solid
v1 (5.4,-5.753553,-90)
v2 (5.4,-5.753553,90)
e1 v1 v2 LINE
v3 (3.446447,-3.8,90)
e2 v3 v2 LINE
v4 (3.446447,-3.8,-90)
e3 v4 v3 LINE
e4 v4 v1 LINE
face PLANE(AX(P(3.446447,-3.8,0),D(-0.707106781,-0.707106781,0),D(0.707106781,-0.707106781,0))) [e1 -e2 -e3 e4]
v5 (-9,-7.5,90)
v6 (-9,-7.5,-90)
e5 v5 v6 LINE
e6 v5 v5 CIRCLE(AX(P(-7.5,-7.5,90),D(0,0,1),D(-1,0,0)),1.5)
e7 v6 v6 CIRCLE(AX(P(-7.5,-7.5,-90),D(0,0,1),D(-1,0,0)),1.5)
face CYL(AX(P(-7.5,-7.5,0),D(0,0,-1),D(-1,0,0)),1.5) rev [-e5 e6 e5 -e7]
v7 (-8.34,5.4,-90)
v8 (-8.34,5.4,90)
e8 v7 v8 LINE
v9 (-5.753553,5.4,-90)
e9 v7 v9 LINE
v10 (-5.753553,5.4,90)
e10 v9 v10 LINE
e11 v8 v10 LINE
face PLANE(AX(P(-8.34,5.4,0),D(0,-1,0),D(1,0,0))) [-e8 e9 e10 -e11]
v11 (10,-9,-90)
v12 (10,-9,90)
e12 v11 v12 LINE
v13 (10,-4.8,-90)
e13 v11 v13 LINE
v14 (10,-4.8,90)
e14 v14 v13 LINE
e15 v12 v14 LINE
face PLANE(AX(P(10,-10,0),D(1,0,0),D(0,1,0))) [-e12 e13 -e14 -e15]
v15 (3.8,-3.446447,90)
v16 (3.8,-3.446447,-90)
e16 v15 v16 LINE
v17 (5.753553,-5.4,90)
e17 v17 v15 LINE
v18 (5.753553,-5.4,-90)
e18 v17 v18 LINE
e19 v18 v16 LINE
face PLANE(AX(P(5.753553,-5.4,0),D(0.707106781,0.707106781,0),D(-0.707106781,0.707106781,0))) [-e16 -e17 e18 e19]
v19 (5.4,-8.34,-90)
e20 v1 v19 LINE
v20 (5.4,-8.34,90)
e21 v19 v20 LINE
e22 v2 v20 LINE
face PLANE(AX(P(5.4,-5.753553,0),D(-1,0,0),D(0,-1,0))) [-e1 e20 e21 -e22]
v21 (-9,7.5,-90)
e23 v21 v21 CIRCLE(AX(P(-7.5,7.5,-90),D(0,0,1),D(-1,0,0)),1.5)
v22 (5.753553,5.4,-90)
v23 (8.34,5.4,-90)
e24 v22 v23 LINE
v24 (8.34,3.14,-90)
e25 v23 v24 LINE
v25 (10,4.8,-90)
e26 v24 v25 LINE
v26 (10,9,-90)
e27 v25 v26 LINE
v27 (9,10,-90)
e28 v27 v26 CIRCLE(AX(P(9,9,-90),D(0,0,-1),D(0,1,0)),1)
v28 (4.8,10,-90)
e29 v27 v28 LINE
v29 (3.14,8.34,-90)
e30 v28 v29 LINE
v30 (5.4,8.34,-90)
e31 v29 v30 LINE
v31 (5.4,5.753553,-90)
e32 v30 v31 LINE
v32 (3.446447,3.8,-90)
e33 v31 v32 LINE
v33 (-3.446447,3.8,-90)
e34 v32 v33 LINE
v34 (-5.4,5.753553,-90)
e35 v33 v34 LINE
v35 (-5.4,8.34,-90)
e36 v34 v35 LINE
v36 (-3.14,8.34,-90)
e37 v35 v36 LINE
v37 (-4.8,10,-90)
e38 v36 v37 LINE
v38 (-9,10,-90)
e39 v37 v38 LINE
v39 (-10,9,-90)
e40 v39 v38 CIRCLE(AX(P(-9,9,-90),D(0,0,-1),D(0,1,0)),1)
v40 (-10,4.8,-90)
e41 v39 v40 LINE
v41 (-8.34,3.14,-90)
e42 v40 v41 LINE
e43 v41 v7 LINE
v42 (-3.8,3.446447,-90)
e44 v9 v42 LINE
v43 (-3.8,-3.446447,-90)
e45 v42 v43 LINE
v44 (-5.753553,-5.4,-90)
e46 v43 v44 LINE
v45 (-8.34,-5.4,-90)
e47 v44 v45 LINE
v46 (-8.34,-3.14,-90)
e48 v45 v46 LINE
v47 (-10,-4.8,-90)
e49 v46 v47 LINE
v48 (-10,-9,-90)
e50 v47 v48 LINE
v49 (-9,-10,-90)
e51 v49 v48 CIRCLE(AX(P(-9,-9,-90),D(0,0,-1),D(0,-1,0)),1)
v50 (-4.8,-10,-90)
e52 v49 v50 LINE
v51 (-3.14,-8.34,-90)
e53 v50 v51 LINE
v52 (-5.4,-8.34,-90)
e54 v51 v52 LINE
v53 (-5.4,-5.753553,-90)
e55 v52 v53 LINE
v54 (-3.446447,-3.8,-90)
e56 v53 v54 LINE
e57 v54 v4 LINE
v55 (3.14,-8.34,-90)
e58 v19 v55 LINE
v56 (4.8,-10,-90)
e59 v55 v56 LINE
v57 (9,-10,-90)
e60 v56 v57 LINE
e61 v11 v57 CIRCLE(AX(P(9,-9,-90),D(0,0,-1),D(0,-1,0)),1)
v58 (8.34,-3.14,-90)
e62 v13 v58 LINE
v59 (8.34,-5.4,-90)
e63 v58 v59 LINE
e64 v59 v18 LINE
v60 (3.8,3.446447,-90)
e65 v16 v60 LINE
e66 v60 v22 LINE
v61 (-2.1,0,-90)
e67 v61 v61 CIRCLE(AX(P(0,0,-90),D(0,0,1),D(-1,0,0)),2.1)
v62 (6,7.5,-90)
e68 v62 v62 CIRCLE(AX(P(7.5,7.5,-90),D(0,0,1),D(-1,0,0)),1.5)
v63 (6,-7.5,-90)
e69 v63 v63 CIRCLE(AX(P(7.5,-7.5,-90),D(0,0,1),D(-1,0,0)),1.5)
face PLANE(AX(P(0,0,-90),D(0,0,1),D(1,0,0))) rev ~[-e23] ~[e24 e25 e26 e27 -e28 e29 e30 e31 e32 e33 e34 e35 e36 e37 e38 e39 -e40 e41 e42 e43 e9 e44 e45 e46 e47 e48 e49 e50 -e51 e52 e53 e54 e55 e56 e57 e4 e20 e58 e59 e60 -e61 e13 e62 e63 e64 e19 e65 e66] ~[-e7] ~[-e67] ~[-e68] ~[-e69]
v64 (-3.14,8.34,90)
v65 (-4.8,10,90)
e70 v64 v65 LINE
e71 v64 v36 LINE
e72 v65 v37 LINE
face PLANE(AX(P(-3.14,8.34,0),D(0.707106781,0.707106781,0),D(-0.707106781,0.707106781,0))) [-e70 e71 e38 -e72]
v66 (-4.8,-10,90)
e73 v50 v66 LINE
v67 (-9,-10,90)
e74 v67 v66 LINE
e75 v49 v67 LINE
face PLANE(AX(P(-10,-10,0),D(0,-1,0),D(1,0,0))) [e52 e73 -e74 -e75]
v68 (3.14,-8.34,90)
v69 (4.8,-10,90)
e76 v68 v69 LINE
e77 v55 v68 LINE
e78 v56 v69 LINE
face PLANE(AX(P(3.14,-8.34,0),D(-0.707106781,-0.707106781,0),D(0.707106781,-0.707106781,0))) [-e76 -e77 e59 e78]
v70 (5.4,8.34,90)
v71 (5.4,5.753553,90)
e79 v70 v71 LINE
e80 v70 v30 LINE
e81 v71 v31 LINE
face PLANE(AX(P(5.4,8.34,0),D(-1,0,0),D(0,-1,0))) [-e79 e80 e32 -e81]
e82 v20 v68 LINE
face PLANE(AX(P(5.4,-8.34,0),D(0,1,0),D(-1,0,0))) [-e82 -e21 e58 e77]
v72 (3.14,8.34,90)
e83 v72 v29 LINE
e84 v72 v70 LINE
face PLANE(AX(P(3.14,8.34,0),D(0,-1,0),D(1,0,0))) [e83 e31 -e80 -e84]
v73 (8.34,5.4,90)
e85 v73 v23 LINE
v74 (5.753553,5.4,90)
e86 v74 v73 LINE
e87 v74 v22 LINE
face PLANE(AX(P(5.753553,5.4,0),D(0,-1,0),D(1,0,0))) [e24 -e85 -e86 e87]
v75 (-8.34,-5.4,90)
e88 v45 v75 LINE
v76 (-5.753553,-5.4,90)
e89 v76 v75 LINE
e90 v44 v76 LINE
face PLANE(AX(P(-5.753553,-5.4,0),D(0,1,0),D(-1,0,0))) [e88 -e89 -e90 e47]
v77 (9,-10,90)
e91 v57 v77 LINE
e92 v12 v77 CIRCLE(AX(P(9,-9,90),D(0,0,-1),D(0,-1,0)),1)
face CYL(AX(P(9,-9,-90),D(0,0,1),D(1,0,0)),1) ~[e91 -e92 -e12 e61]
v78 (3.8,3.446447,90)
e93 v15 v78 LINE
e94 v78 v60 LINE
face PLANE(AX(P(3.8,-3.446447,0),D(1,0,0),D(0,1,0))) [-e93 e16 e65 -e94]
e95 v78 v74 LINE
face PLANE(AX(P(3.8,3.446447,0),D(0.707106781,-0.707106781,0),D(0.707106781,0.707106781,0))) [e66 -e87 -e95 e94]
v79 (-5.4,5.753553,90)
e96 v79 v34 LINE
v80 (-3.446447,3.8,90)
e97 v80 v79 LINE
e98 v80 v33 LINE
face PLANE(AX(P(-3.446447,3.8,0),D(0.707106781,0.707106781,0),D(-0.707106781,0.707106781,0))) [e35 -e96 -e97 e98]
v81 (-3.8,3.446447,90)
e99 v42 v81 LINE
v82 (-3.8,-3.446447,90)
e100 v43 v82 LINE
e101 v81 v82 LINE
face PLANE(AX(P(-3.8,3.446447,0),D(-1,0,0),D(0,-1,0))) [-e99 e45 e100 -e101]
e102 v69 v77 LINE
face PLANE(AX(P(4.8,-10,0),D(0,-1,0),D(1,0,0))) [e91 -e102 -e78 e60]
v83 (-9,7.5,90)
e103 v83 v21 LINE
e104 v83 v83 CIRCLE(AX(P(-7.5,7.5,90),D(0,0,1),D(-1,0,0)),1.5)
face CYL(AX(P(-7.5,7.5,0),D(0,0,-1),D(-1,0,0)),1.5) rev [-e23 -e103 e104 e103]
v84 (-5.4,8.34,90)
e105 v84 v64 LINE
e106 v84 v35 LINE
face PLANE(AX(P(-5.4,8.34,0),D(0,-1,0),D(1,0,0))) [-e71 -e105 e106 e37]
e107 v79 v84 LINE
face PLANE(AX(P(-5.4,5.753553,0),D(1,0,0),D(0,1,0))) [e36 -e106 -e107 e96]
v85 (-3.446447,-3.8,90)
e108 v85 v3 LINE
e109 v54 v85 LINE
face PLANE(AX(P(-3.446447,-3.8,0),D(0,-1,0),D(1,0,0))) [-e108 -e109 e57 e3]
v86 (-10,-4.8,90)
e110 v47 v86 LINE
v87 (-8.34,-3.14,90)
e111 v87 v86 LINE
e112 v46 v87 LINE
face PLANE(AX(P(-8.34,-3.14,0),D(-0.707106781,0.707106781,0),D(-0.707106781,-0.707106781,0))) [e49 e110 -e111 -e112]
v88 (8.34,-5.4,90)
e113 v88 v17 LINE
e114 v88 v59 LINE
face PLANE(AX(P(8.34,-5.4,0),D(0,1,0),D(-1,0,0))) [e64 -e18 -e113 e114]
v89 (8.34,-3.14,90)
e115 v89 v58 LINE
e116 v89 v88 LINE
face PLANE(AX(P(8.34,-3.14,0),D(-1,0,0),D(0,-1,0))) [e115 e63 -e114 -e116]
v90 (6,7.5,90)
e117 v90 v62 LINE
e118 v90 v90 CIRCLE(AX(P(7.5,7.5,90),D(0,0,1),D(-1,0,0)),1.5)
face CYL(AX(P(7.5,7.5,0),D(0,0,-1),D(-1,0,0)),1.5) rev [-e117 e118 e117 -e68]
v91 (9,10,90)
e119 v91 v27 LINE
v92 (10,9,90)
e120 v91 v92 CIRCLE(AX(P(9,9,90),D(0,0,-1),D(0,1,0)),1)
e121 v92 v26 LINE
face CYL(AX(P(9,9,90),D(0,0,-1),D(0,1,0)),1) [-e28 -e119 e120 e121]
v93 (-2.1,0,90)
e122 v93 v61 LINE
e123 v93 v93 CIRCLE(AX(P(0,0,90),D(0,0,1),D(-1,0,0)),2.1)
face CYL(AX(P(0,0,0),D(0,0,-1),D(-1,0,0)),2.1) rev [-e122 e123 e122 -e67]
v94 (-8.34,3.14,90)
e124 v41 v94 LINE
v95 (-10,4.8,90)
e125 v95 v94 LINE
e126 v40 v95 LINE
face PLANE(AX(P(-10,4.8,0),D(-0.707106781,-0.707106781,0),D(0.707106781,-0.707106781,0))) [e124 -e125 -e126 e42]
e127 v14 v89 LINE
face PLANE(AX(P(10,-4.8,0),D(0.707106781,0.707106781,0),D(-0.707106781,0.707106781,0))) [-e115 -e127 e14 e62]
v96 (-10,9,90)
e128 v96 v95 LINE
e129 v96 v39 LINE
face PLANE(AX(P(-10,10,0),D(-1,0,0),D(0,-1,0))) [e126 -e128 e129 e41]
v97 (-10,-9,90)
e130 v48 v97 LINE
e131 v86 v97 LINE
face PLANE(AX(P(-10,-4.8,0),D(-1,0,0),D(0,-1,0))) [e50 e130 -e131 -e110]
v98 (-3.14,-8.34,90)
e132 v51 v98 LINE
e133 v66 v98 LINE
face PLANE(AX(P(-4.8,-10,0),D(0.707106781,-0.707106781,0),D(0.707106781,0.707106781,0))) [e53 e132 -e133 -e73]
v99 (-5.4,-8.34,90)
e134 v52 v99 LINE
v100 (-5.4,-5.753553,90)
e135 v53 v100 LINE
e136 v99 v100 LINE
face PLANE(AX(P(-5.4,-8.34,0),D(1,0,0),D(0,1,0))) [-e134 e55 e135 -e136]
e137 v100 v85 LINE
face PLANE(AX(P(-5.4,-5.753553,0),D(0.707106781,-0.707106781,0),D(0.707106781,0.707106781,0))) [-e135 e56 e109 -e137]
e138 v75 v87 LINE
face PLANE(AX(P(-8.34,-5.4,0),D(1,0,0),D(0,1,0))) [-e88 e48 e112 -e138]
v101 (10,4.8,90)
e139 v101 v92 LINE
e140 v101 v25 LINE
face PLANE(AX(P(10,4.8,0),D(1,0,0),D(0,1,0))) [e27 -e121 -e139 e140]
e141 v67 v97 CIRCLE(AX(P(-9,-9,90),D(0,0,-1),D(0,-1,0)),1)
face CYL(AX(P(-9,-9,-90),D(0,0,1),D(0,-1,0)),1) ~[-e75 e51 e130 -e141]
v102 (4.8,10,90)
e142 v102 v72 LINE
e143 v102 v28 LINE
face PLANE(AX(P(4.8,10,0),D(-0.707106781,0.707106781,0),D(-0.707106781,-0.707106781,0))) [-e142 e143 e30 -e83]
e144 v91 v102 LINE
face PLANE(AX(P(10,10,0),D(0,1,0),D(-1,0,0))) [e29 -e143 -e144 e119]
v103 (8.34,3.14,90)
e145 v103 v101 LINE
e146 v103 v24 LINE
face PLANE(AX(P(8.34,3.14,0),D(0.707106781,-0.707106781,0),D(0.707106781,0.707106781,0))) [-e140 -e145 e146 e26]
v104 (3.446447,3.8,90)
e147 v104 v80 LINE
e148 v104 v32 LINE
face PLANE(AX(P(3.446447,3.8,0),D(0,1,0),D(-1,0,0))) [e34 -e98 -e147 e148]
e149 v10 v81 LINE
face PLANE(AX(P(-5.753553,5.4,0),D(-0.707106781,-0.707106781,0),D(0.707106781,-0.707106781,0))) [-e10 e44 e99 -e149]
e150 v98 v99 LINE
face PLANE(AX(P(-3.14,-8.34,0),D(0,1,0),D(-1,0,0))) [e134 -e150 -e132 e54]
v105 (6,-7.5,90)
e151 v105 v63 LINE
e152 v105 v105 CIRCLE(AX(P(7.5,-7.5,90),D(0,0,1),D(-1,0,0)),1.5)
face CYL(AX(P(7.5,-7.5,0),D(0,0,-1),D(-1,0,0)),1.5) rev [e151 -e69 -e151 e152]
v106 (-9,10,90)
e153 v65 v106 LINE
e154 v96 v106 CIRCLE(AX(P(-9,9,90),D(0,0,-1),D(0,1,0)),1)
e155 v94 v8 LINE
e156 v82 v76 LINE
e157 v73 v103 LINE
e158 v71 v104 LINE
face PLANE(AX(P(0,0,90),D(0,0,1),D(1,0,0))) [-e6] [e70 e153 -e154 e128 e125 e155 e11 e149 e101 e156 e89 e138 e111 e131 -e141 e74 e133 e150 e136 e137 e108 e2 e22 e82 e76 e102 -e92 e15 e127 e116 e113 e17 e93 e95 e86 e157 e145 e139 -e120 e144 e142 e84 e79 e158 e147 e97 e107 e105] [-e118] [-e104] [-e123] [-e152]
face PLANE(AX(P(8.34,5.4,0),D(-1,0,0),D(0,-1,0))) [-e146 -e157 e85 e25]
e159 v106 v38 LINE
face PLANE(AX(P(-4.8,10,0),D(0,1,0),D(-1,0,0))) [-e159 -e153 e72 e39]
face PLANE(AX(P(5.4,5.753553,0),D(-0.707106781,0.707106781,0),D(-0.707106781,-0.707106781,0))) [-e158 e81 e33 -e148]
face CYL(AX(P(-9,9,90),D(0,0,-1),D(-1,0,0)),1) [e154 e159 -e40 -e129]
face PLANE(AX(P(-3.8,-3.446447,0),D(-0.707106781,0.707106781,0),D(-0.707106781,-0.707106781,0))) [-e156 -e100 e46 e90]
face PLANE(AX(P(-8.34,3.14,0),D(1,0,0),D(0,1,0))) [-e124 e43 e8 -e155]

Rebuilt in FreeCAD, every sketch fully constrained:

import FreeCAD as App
import Part
import Sketcher
from FreeCAD import Vector


def edges_at(feature, points):
    """Names of the edges that pass closest to the given points."""
    edges = feature.Shape.Edges
    near = lambda p: min(range(len(edges)), key=lambda i: edges[i].distToShape(Part.Vertex(*p))[0])
    return sorted({f"Edge{near(p) + 1}" for p in points})

doc = App.newDocument("Part")
body = doc.addObject("PartDesign::Body", "Body")

# Sketch on XY plane
sketch1 = body.newObject("Sketcher::SketchObject", "Sketch")
sketch1.AttachmentSupport = (doc.getObject("XY_Plane"), [""])
sketch1.MapMode = "FlatFace"
sketch1.addGeometry([
    Part.LineSegment(Vector(-10, 10, 0), Vector(-10, 4.8, 0)),  # 0
    Part.LineSegment(Vector(-10, 4.8, 0), Vector(-8.3, 3.1, 0)),  # 1
    Part.LineSegment(Vector(-8.3, 3.1, 0), Vector(-8.3, 5.4, 0)),  # 2
    Part.LineSegment(Vector(-8.3, 5.4, 0), Vector(-5.8, 5.4, 0)),  # 3
    Part.LineSegment(Vector(-5.8, 5.4, 0), Vector(-3.8, 3.4, 0)),  # 4
    Part.LineSegment(Vector(-3.8, 3.4, 0), Vector(-3.8, -3.4, 0)),  # 5
    Part.LineSegment(Vector(-3.8, -3.4, 0), Vector(-5.8, -5.4, 0)),  # 6
    Part.LineSegment(Vector(-5.8, -5.4, 0), Vector(-8.3, -5.4, 0)),  # 7
    Part.LineSegment(Vector(-8.3, -5.4, 0), Vector(-8.3, -3.1, 0)),  # 8
    Part.LineSegment(Vector(-8.3, -3.1, 0), Vector(-10, -4.8, 0)),  # 9
    Part.LineSegment(Vector(-10, -4.8, 0), Vector(-10, -10, 0)),  # 10
    Part.LineSegment(Vector(-10, -10, 0), Vector(-4.8, -10, 0)),  # 11
    Part.LineSegment(Vector(-4.8, -10, 0), Vector(-3.1, -8.3, 0)),  # 12
    Part.LineSegment(Vector(-3.1, -8.3, 0), Vector(-5.4, -8.3, 0)),  # 13
    Part.LineSegment(Vector(-5.4, -8.3, 0), Vector(-5.4, -5.8, 0)),  # 14
    Part.LineSegment(Vector(-5.4, -5.8, 0), Vector(-3.4, -3.8, 0)),  # 15
    Part.LineSegment(Vector(-3.4, -3.8, 0), Vector(3.4, -3.8, 0)),  # 16
    Part.LineSegment(Vector(3.4, -3.8, 0), Vector(5.4, -5.8, 0)),  # 17
    Part.LineSegment(Vector(5.4, -5.8, 0), Vector(5.4, -8.3, 0)),  # 18
    Part.LineSegment(Vector(5.4, -8.3, 0), Vector(3.1, -8.3, 0)),  # 19
    Part.LineSegment(Vector(3.1, -8.3, 0), Vector(4.8, -10, 0)),  # 20
    Part.LineSegment(Vector(4.8, -10, 0), Vector(10, -10, 0)),  # 21
    Part.LineSegment(Vector(10, -10, 0), Vector(10, -4.8, 0)),  # 22
    Part.LineSegment(Vector(10, -4.8, 0), Vector(8.3, -3.1, 0)),  # 23
    Part.LineSegment(Vector(8.3, -3.1, 0), Vector(8.3, -5.4, 0)),  # 24
    Part.LineSegment(Vector(8.3, -5.4, 0), Vector(5.8, -5.4, 0)),  # 25
    Part.LineSegment(Vector(5.8, -5.4, 0), Vector(3.8, -3.4, 0)),  # 26
    Part.LineSegment(Vector(3.8, -3.4, 0), Vector(3.8, 3.4, 0)),  # 27
    Part.LineSegment(Vector(3.8, 3.4, 0), Vector(5.8, 5.4, 0)),  # 28
    Part.LineSegment(Vector(5.8, 5.4, 0), Vector(8.3, 5.4, 0)),  # 29
    Part.LineSegment(Vector(8.3, 5.4, 0), Vector(8.3, 3.1, 0)),  # 30
    Part.LineSegment(Vector(8.3, 3.1, 0), Vector(10, 4.8, 0)),  # 31
    Part.LineSegment(Vector(10, 4.8, 0), Vector(10, 10, 0)),  # 32
    Part.LineSegment(Vector(10, 10, 0), Vector(4.8, 10, 0)),  # 33
    Part.LineSegment(Vector(4.8, 10, 0), Vector(3.1, 8.3, 0)),  # 34
    Part.LineSegment(Vector(3.1, 8.3, 0), Vector(5.4, 8.3, 0)),  # 35
    Part.LineSegment(Vector(5.4, 8.3, 0), Vector(5.4, 5.8, 0)),  # 36
    Part.LineSegment(Vector(5.4, 5.8, 0), Vector(3.4, 3.8, 0)),  # 37
    Part.LineSegment(Vector(3.4, 3.8, 0), Vector(-3.4, 3.8, 0)),  # 38
    Part.LineSegment(Vector(-3.4, 3.8, 0), Vector(-5.4, 5.8, 0)),  # 39
    Part.LineSegment(Vector(-5.4, 5.8, 0), Vector(-5.4, 8.3, 0)),  # 40
    Part.LineSegment(Vector(-5.4, 8.3, 0), Vector(-3.1, 8.3, 0)),  # 41
    Part.LineSegment(Vector(-3.1, 8.3, 0), Vector(-4.8, 10, 0)),  # 42
    Part.LineSegment(Vector(-4.8, 10, 0), Vector(-10, 10, 0)),  # 43
    Part.Circle(Vector(-7.5, -7.5, 0), Vector(0, 0, 1), 1.5),  # 44
    Part.Circle(Vector(7.5, -7.5, 0), Vector(0, 0, 1), 1.5),  # 45
    Part.Circle(Vector(-7.5, 7.5, 0), Vector(0, 0, 1), 1.5),  # 46
    Part.Circle(Vector(0, 0, 0), Vector(0, 0, 1), 2.1),  # 47
    Part.Circle(Vector(7.5, 7.5, 0), Vector(0, 0, 1), 1.5),  # 48
], False)
sketch1.addConstraint([
    Sketcher.Constraint("Coincident", 0, 2, 1, 1),
    Sketcher.Constraint("Coincident", 1, 2, 2, 1),
    Sketcher.Constraint("Coincident", 2, 2, 3, 1),
    Sketcher.Constraint("Coincident", 3, 2, 4, 1),
    Sketcher.Constraint("Coincident", 4, 2, 5, 1),
    Sketcher.Constraint("Coincident", 5, 2, 6, 1),
    Sketcher.Constraint("Coincident", 6, 2, 7, 1),
    Sketcher.Constraint("Coincident", 7, 2, 8, 1),
    Sketcher.Constraint("Coincident", 8, 2, 9, 1),
    Sketcher.Constraint("Coincident", 9, 2, 10, 1),
    Sketcher.Constraint("Coincident", 10, 2, 11, 1),
    Sketcher.Constraint("Coincident", 11, 2, 12, 1),
    Sketcher.Constraint("Coincident", 12, 2, 13, 1),
    Sketcher.Constraint("Coincident", 13, 2, 14, 1),
    Sketcher.Constraint("Coincident", 14, 2, 15, 1),
    Sketcher.Constraint("Coincident", 15, 2, 16, 1),
    Sketcher.Constraint("Coincident", 16, 2, 17, 1),
    Sketcher.Constraint("Coincident", 17, 2, 18, 1),
    Sketcher.Constraint("Coincident", 18, 2, 19, 1),
    Sketcher.Constraint("Coincident", 19, 2, 20, 1),
    Sketcher.Constraint("Coincident", 20, 2, 21, 1),
    Sketcher.Constraint("Coincident", 21, 2, 22, 1),
    Sketcher.Constraint("Coincident", 22, 2, 23, 1),
    Sketcher.Constraint("Coincident", 23, 2, 24, 1),
    Sketcher.Constraint("Coincident", 24, 2, 25, 1),
    Sketcher.Constraint("Coincident", 25, 2, 26, 1),
    Sketcher.Constraint("Coincident", 26, 2, 27, 1),
    Sketcher.Constraint("Coincident", 27, 2, 28, 1),
    Sketcher.Constraint("Coincident", 28, 2, 29, 1),
    Sketcher.Constraint("Coincident", 29, 2, 30, 1),
    Sketcher.Constraint("Coincident", 30, 2, 31, 1),
    Sketcher.Constraint("Coincident", 31, 2, 32, 1),
    Sketcher.Constraint("Coincident", 32, 2, 33, 1),
    Sketcher.Constraint("Coincident", 33, 2, 34, 1),
    Sketcher.Constraint("Coincident", 34, 2, 35, 1),
    Sketcher.Constraint("Coincident", 35, 2, 36, 1),
    Sketcher.Constraint("Coincident", 36, 2, 37, 1),
    Sketcher.Constraint("Coincident", 37, 2, 38, 1),
    Sketcher.Constraint("Coincident", 38, 2, 39, 1),
    Sketcher.Constraint("Coincident", 39, 2, 40, 1),
    Sketcher.Constraint("Coincident", 40, 2, 41, 1),
    Sketcher.Constraint("Coincident", 41, 2, 42, 1),
    Sketcher.Constraint("Coincident", 42, 2, 43, 1),
    Sketcher.Constraint("Coincident", 43, 2, 0, 1),
    Sketcher.Constraint("Vertical", 0),
    Sketcher.Constraint("Vertical", 2),
    Sketcher.Constraint("Horizontal", 3),
    Sketcher.Constraint("Vertical", 5),
    Sketcher.Constraint("Horizontal", 7),
    Sketcher.Constraint("Vertical", 8),
    Sketcher.Constraint("Vertical", 10),
    Sketcher.Constraint("Horizontal", 11),
    Sketcher.Constraint("Horizontal", 13),
    Sketcher.Constraint("Vertical", 14),
    Sketcher.Constraint("Horizontal", 16),
    Sketcher.Constraint("Vertical", 18),
    Sketcher.Constraint("Horizontal", 19),
    Sketcher.Constraint("Horizontal", 21),
    Sketcher.Constraint("Vertical", 22),
    Sketcher.Constraint("Vertical", 24),
    Sketcher.Constraint("Horizontal", 25),
    Sketcher.Constraint("Vertical", 27),
    Sketcher.Constraint("Horizontal", 29),
    Sketcher.Constraint("Vertical", 30),
    Sketcher.Constraint("Vertical", 32),
    Sketcher.Constraint("Horizontal", 33),
    Sketcher.Constraint("Horizontal", 35),
    Sketcher.Constraint("Vertical", 36),
    Sketcher.Constraint("Horizontal", 38),
    Sketcher.Constraint("Vertical", 40),
    Sketcher.Constraint("Horizontal", 41),
    Sketcher.Constraint("Horizontal", 43),
    Sketcher.Constraint("Coincident", 47, 3, -1, 1),
    Sketcher.Constraint("Equal", 44, 45),
    Sketcher.Constraint("Equal", 45, 46),
    Sketcher.Constraint("Equal", 46, 48),
    Sketcher.Constraint("Symmetric", 45, 3, 46, 3, -1, 1),
    Sketcher.Constraint("Symmetric", 44, 3, 48, 3, -1, 1),
    Sketcher.Constraint("Symmetric", 0, 2, 22, 2, -1, 1),
    Sketcher.Constraint("Symmetric", 1, 2, 23, 2, -1, 1),
    Sketcher.Constraint("Symmetric", 3, 2, 25, 2, -1, 1),
    Sketcher.Constraint("Symmetric", 4, 2, 26, 2, -1, 1),
    Sketcher.Constraint("Symmetric", 6, 2, 28, 2, -1, 1),
    Sketcher.Constraint("Symmetric", 8, 2, 30, 2, -1, 1),
    Sketcher.Constraint("Symmetric", 9, 2, 31, 2, -1, 1),
    Sketcher.Constraint("Symmetric", 11, 2, 33, 2, -1, 1),
    Sketcher.Constraint("Symmetric", 12, 2, 34, 2, -1, 1),
    Sketcher.Constraint("Symmetric", 14, 2, 36, 2, -1, 1),
    Sketcher.Constraint("Symmetric", 15, 2, 37, 2, -1, 1),
    Sketcher.Constraint("Symmetric", 17, 2, 39, 2, -1, 1),
    Sketcher.Constraint("Symmetric", 19, 2, 41, 2, -1, 1),
    Sketcher.Constraint("Symmetric", 20, 2, 42, 2, -1, 1),
    Sketcher.Constraint("Symmetric", 44, 3, 45, 3, -2),
    Sketcher.Constraint("Symmetric", 14, 2, 17, 2, -2),
    Sketcher.Constraint("Symmetric", 12, 2, 19, 2, -2),
    Sketcher.Constraint("Symmetric", 11, 2, 20, 2, -2),
    Sketcher.Constraint("Symmetric", 9, 2, 22, 2, -2),
    Sketcher.Constraint("Symmetric", 8, 2, 23, 2, -2),
    Sketcher.Constraint("Symmetric", 6, 2, 25, 2, -2),
    Sketcher.Constraint("Parallel", 1, 4),
    Sketcher.Constraint("Perpendicular", 4, 6),
    Sketcher.Constraint("Parallel", 6, 9),
    Sketcher.Constraint("Parallel", 9, 12),
    Sketcher.Constraint("Parallel", 12, 15),
    Sketcher.Constraint("Perpendicular", 15, 17),
    Sketcher.Constraint("Perpendicular", 26, 28),
    Sketcher.Constraint("Perpendicular", 37, 39),
    Sketcher.Constraint("Equal", 43, 0),
    Sketcher.Constraint("Equal", 41, 2),
    Sketcher.Constraint("Equal", 38, 5),
    Sketcher.Constraint("Equal", 29, 14),
    Sketcher.Constraint("Equal", 9, 12),
    Sketcher.Constraint("Equal", 6, 15),
    Sketcher.Constraint("Diameter", 44, 3.0),
    Sketcher.Constraint("Diameter", 47, 4.2),
    Sketcher.Constraint("DistanceX", 11, 1, 11, 2, 5.2),
    Sketcher.Constraint("DistanceX", 0, 2, -1, 1, 10.0),
    Sketcher.Constraint("DistanceX", 44, 3, 45, 3, 15.0),
    Sketcher.Constraint("DistanceY", 44, 3, 46, 3, 15.0),
    Sketcher.Constraint("DistanceX", 11, 2, 5, 2, 1.0),
    Sketcher.Constraint("DistanceX", 13, 2, 13, 1, 2.26),
    Sketcher.Constraint("DistanceY", -1, 1, 2, 2, 5.4),
    Sketcher.Constraint("Distance", 4, 2.762742),
])
pad1 = body.newObject("PartDesign::Pad", "Pad")
pad1.Profile = sketch1
pad1.Length = 180
pad1.Midplane = True
doc.recompute()

fillet = body.newObject("PartDesign::Fillet", "Fillet")
fillet.Base = (pad1, edges_at(pad1, [
    (10, 10, 0),
    (10, -10, 0),
    (-10, -10, 0),
    (-10, 10, 0),
]))
fillet.Radius = 1

doc.recompute()
